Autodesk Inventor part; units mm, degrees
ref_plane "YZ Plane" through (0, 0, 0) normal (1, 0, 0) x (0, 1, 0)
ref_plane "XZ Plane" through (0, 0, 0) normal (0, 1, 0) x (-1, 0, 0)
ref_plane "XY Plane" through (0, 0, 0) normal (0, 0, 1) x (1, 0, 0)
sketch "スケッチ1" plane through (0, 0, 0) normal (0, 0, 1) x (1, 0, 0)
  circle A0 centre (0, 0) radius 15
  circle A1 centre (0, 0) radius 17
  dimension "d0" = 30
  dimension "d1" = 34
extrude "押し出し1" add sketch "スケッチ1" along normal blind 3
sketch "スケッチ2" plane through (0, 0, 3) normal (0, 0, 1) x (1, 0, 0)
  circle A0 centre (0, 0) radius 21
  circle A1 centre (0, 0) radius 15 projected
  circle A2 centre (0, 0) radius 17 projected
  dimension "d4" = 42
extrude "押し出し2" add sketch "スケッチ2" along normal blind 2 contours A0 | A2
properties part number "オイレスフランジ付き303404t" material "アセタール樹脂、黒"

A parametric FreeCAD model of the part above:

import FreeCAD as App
import Part
import Sketcher
Q = App.Units.Quantity

doc = App.newDocument("Part")
body = doc.addObject("PartDesign::Body", "Body")

# Sketch on XY plane
sketch1 = body.newObject("Sketcher::SketchObject", "Sketch")
sketch1.AttachmentSupport = (doc.getObject("XY_Plane"), [""])
sketch1.MapMode = "FlatFace"
sketch1.addGeometry([
    Part.Circle(App.Vector(0, 0, 0), App.Vector(0, 0, 1), 17),
    Part.Circle(App.Vector(0, 0, 0), App.Vector(0, 0, 1), 15),
], False)
sketch1.addConstraint([
    Sketcher.Constraint("Coincident", 0, 3, -1, 1),
    Sketcher.Constraint("Coincident", 1, 3, -1, 1),
    Sketcher.Constraint("Diameter", 0, Q("34 mm")),
    Sketcher.Constraint("Diameter", 1, Q("30 mm")),
])
pad1 = body.newObject("PartDesign::Pad", "Pad")
pad1.Profile = sketch1
pad1.Length = 3

# Sketch on XY plane
sketch2 = body.newObject("Sketcher::SketchObject", "Sketch001")
sketch2.AttachmentSupport = (doc.getObject("XY_Plane"), [""])
sketch2.MapMode = "FlatFace"
sketch2.AttachmentOffset = App.Placement(App.Vector(0, 0, 3), App.Rotation())
sketch2.addGeometry([
    Part.Circle(App.Vector(0, 0, 0), App.Vector(0, 0, 1), 21),
    Part.Circle(App.Vector(0, 0, 0), App.Vector(0, 0, 1), 15),
], False)
sketch2.addConstraint([
    Sketcher.Constraint("Coincident", 0, 3, -1, 1),
    Sketcher.Constraint("Coincident", 1, 3, -1, 1),
    Sketcher.Constraint("Diameter", 0, Q("42 mm")),
    Sketcher.Constraint("Diameter", 1, Q("30 mm")),
])
pad2 = body.newObject("PartDesign::Pad", "Pad001")
pad2.Profile = sketch2
pad2.Length = 2

doc.recompute()
